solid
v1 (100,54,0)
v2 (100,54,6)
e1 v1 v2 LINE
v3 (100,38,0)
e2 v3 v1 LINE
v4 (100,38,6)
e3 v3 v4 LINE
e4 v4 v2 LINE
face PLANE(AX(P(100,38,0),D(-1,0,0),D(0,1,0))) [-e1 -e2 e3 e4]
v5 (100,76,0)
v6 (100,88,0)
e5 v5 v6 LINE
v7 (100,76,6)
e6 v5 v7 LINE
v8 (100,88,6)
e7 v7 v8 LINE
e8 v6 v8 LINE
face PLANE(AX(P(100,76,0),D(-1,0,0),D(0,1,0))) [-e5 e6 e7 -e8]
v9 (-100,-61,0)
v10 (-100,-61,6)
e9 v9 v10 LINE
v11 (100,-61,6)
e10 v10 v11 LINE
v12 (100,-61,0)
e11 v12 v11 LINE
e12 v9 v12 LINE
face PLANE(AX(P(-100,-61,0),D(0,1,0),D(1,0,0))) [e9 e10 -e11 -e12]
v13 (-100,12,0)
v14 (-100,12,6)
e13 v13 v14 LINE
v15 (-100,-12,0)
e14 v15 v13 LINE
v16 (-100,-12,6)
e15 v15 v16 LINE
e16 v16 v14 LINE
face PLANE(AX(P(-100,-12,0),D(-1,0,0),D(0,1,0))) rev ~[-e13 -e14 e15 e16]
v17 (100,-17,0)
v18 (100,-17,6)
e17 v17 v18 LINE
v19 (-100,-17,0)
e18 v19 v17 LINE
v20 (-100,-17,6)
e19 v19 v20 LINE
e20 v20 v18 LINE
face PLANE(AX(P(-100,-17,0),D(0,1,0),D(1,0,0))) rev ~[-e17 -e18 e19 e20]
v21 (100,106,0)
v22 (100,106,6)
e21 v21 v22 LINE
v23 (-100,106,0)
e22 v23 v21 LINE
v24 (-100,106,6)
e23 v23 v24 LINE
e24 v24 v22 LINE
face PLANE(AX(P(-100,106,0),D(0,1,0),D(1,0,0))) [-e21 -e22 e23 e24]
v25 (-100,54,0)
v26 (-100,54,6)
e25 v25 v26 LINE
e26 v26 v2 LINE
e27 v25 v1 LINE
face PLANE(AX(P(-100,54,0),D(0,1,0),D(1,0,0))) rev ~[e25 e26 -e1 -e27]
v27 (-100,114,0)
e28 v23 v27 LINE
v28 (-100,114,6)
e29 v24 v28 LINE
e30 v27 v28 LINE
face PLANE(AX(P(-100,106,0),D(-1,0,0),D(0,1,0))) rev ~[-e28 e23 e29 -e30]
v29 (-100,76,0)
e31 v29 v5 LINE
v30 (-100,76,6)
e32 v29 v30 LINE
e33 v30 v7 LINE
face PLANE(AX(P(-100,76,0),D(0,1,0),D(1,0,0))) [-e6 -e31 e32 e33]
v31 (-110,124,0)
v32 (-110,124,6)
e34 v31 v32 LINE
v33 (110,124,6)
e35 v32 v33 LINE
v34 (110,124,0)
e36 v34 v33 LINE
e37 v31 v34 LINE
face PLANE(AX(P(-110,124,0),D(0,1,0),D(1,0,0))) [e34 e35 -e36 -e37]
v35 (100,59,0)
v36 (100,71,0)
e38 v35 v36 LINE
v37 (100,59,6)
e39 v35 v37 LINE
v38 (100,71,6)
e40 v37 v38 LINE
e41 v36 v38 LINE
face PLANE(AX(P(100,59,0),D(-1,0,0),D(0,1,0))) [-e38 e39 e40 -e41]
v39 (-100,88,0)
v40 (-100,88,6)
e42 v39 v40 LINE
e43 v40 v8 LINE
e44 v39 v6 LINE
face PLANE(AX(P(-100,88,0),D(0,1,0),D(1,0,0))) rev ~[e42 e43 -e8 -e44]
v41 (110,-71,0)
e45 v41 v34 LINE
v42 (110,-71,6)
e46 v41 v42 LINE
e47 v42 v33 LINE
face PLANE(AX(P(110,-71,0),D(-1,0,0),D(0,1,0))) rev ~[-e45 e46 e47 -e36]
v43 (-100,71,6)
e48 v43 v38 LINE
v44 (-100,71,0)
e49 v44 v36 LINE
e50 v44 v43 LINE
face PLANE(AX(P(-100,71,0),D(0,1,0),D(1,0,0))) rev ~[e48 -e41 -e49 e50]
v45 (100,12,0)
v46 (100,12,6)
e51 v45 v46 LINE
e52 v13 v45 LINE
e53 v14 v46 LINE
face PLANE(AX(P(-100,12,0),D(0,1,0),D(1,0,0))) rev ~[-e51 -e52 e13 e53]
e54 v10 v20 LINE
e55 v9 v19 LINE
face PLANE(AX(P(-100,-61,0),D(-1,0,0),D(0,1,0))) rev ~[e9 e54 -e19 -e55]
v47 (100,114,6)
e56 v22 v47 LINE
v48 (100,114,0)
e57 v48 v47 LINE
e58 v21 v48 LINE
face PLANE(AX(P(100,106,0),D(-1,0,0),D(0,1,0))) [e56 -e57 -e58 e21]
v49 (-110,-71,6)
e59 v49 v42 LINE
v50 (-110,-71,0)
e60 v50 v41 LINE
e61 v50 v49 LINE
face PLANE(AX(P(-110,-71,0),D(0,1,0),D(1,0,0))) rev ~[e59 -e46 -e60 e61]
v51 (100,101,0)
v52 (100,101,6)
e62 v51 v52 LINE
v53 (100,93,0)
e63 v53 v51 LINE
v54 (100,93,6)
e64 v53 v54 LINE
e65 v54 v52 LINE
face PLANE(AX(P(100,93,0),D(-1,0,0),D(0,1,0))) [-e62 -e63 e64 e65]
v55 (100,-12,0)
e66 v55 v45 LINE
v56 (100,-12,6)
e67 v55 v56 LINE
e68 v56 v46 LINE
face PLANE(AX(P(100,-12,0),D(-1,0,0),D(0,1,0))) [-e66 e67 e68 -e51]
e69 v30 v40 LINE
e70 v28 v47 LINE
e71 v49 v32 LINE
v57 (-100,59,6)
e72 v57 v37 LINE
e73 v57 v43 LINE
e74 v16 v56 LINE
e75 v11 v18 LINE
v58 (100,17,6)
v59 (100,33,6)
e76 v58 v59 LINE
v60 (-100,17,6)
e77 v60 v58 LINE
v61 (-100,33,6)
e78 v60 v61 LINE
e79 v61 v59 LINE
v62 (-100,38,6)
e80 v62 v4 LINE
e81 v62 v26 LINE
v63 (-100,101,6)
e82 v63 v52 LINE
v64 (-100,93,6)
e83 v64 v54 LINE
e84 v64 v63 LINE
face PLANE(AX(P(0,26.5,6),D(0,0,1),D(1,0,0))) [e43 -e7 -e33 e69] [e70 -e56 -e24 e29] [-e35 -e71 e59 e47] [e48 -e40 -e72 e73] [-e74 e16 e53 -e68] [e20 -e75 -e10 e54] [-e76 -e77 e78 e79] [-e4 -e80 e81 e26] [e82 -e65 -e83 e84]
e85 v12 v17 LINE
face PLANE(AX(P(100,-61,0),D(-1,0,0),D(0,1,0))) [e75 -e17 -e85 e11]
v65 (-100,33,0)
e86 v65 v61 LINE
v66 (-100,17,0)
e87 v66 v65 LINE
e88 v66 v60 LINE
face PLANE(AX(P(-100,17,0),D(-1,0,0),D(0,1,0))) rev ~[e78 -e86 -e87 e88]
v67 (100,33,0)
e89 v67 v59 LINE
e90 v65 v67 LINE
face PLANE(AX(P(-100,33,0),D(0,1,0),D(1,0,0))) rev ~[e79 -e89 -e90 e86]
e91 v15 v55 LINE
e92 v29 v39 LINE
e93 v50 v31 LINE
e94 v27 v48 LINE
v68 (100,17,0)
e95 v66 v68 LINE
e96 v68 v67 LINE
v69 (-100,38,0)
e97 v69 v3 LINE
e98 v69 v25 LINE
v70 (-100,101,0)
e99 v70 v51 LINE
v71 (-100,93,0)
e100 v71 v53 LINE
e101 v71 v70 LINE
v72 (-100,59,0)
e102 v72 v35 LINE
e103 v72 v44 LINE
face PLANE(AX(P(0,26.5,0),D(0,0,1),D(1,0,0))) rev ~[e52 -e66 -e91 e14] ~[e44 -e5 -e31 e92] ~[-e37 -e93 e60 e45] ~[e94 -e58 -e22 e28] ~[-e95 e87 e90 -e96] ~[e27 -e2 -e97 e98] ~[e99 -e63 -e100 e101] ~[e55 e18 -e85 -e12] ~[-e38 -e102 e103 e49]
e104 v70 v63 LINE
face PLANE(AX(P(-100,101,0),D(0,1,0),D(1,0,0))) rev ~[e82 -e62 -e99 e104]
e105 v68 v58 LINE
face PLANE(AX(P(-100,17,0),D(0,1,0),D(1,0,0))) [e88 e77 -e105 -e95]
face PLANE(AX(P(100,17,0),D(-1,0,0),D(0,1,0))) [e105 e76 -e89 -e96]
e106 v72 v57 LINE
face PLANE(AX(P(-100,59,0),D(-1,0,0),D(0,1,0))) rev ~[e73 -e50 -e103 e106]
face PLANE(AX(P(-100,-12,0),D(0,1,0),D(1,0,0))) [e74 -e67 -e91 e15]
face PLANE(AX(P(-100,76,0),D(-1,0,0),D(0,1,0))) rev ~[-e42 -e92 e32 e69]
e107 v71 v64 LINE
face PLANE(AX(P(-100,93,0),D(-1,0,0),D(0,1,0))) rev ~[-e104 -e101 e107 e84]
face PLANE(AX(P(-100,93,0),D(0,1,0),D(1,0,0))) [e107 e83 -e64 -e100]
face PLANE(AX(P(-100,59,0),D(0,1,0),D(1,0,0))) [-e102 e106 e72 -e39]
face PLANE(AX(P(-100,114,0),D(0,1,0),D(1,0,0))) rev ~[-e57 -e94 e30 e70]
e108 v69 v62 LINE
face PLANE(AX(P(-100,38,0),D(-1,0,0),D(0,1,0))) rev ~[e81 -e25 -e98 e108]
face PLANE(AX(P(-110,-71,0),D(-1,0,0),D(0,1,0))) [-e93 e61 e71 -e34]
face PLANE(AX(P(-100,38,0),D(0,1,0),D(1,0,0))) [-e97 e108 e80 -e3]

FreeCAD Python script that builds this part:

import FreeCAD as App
import Part
import Sketcher
from FreeCAD import Vector


def add_polygon(sketch, points):
    """Adds a closed chain of lines whose ends are joined by coincident constraints."""
    first, n = sketch.GeometryCount, len(points)
    for a, b in zip(points, points[1:] + points[:1]):
        sketch.addGeometry(Part.LineSegment(App.Vector(*a, 0), App.Vector(*b, 0)), False)
    for i in range(n):
        sketch.addConstraint(Sketcher.Constraint("Coincident", first + i, 2, first + (i + 1) % n, 1))

doc = App.newDocument("Part")
body = doc.addObject("PartDesign::Body", "Body")

sketch1 = doc.addObject("Sketcher::SketchObject", "Sketch")
body.addObject(sketch1)
sketch1.AttachmentSupport = (doc.XY_Plane, [""])
sketch1.MapMode = "FlatFace"
add_polygon(sketch1, [(-110, 124), (-110, -71), (110, -71), (110, 124)])
add_polygon(sketch1, [(100, -61), (-100, -61), (-100, -17), (100, -17)])
add_polygon(sketch1, [(100, -12), (-100, -12), (-100, 12), (100, 12)])
add_polygon(sketch1, [(100, 17), (-100, 17), (-100, 33), (100, 33)])
add_polygon(sketch1, [(100, 38), (-100, 38), (-100, 54), (100, 54)])
add_polygon(sketch1, [(100, 59), (-100, 59), (-100, 71), (100, 71)])
add_polygon(sketch1, [(100, 76), (-100, 76), (-100, 88), (100, 88)])
add_polygon(sketch1, [(100, 93), (-100, 93), (-100, 101), (100, 101)])
add_polygon(sketch1, [(100, 106), (-100, 106), (-100, 114), (100, 114)])
sketch1.addConstraint(Sketcher.Constraint("Vertical", 0))
sketch1.addConstraint(Sketcher.Constraint("Horizontal", 1))
sketch1.addConstraint(Sketcher.Constraint("Vertical", 2))
sketch1.addConstraint(Sketcher.Constraint("Horizontal", 3))
sketch1.addConstraint(Sketcher.Constraint("Horizontal", 4))
sketch1.addConstraint(Sketcher.Constraint("Vertical", 5))
sketch1.addConstraint(Sketcher.Constraint("Horizontal", 6))
sketch1.addConstraint(Sketcher.Constraint("Vertical", 7))
sketch1.addConstraint(Sketcher.Constraint("Horizontal", 8))
sketch1.addConstraint(Sketcher.Constraint("Vertical", 9))
sketch1.addConstraint(Sketcher.Constraint("Horizontal", 10))
sketch1.addConstraint(Sketcher.Constraint("Vertical", 11))
sketch1.addConstraint(Sketcher.Constraint("Horizontal", 12))
sketch1.addConstraint(Sketcher.Constraint("Vertical", 13))
sketch1.addConstraint(Sketcher.Constraint("Horizontal", 14))
sketch1.addConstraint(Sketcher.Constraint("Vertical", 15))
sketch1.addConstraint(Sketcher.Constraint("Horizontal", 16))
sketch1.addConstraint(Sketcher.Constraint("Vertical", 17))
sketch1.addConstraint(Sketcher.Constraint("Horizontal", 18))
sketch1.addConstraint(Sketcher.Constraint("Vertical", 19))
sketch1.addConstraint(Sketcher.Constraint("Horizontal", 20))
sketch1.addConstraint(Sketcher.Constraint("Vertical", 21))
sketch1.addConstraint(Sketcher.Constraint("Horizontal", 22))
sketch1.addConstraint(Sketcher.Constraint("Vertical", 23))
sketch1.addConstraint(Sketcher.Constraint("Horizontal", 24))
sketch1.addConstraint(Sketcher.Constraint("Vertical", 25))
sketch1.addConstraint(Sketcher.Constraint("Horizontal", 26))
sketch1.addConstraint(Sketcher.Constraint("Vertical", 27))
sketch1.addConstraint(Sketcher.Constraint("Horizontal", 28))
sketch1.addConstraint(Sketcher.Constraint("Vertical", 29))
sketch1.addConstraint(Sketcher.Constraint("Horizontal", 30))
sketch1.addConstraint(Sketcher.Constraint("Vertical", 31))
sketch1.addConstraint(Sketcher.Constraint("Horizontal", 32))
sketch1.addConstraint(Sketcher.Constraint("Vertical", 33))
sketch1.addConstraint(Sketcher.Constraint("Horizontal", 34))
sketch1.addConstraint(Sketcher.Constraint("Vertical", 35))
sketch1.addConstraint(Sketcher.Constraint("Symmetric", 8, 2, 10, 2, -1, 1))
sketch1.addConstraint(Sketcher.Constraint("Symmetric", 6, 2, 12, 2, -1, 1))
sketch1.addConstraint(Sketcher.Constraint("Vertical", 5, 2, 8, 2))
sketch1.addConstraint(Sketcher.Constraint("Vertical", 7, 2, 10, 2))
sketch1.addConstraint(Sketcher.Constraint("Vertical", 11, 2, 14, 2))
sketch1.addConstraint(Sketcher.Constraint("Vertical", 13, 2, 16, 2))
sketch1.addConstraint(Sketcher.Constraint("Vertical", 15, 2, 18, 2))
sketch1.addConstraint(Sketcher.Constraint("Vertical", 17, 2, 20, 2))
sketch1.addConstraint(Sketcher.Constraint("Vertical", 19, 2, 22, 2))
sketch1.addConstraint(Sketcher.Constraint("Vertical", 21, 2, 24, 2))
sketch1.addConstraint(Sketcher.Constraint("Vertical", 23, 2, 26, 2))
sketch1.addConstraint(Sketcher.Constraint("Vertical", 25, 2, 28, 2))
sketch1.addConstraint(Sketcher.Constraint("Vertical", 27, 2, 30, 2))
sketch1.addConstraint(Sketcher.Constraint("Vertical", 29, 2, 32, 2))
sketch1.addConstraint(Sketcher.Constraint("Vertical", 31, 2, 34, 2))
sketch1.addConstraint(Sketcher.Constraint("Equal", 15, 17))
sketch1.addConstraint(Sketcher.Constraint("Equal", 23, 25))
sketch1.addConstraint(Sketcher.Constraint("Equal", 31, 33))
sketch1.addConstraint(Sketcher.Constraint("DistanceX", 1, 1, 1, 2, 220.0))
sketch1.addConstraint(Sketcher.Constraint("DistanceX", 4, 2, 4, 1, 200.0))
sketch1.addConstraint(Sketcher.Constraint("DistanceY", 0, 2, 0, 1, 195.0))
sketch1.addConstraint(Sketcher.Constraint("DistanceY", 5, 1, 5, 2, 44.0))
sketch1.addConstraint(Sketcher.Constraint("DistanceY", 9, 1, 9, 2, 24.0))
sketch1.addConstraint(Sketcher.Constraint("DistanceY", 13, 1, 13, 2, 16.0))
sketch1.addConstraint(Sketcher.Constraint("DistanceY", 21, 1, 21, 2, 12.0))
sketch1.addConstraint(Sketcher.Constraint("DistanceY", 29, 1, 29, 2, 8.0))
sketch1.addConstraint(Sketcher.Constraint("DistanceX", 0, 2, -1, 1, 110.0))
sketch1.addConstraint(Sketcher.Constraint("DistanceY", 0, 2, -1, 1, 71.0))
sketch1.addConstraint(Sketcher.Constraint("DistanceY", 4, 2, -1, 1, 61.0))
sketch1.addConstraint(Sketcher.Constraint("DistanceY", -1, 1, 16, 2, 38.0))
sketch1.addConstraint(Sketcher.Constraint("DistanceY", -1, 1, 20, 2, 59.0))
sketch1.addConstraint(Sketcher.Constraint("DistanceY", -1, 1, 24, 2, 76.0))
sketch1.addConstraint(Sketcher.Constraint("DistanceY", -1, 1, 28, 2, 93.0))
sketch1.addConstraint(Sketcher.Constraint("DistanceY", -1, 1, 32, 2, 106.0))
pad1 = doc.addObject("PartDesign::Pad", "Pad")
body.addObject(pad1)
pad1.Profile = sketch1
pad1.Length = 6

doc.recompute()
